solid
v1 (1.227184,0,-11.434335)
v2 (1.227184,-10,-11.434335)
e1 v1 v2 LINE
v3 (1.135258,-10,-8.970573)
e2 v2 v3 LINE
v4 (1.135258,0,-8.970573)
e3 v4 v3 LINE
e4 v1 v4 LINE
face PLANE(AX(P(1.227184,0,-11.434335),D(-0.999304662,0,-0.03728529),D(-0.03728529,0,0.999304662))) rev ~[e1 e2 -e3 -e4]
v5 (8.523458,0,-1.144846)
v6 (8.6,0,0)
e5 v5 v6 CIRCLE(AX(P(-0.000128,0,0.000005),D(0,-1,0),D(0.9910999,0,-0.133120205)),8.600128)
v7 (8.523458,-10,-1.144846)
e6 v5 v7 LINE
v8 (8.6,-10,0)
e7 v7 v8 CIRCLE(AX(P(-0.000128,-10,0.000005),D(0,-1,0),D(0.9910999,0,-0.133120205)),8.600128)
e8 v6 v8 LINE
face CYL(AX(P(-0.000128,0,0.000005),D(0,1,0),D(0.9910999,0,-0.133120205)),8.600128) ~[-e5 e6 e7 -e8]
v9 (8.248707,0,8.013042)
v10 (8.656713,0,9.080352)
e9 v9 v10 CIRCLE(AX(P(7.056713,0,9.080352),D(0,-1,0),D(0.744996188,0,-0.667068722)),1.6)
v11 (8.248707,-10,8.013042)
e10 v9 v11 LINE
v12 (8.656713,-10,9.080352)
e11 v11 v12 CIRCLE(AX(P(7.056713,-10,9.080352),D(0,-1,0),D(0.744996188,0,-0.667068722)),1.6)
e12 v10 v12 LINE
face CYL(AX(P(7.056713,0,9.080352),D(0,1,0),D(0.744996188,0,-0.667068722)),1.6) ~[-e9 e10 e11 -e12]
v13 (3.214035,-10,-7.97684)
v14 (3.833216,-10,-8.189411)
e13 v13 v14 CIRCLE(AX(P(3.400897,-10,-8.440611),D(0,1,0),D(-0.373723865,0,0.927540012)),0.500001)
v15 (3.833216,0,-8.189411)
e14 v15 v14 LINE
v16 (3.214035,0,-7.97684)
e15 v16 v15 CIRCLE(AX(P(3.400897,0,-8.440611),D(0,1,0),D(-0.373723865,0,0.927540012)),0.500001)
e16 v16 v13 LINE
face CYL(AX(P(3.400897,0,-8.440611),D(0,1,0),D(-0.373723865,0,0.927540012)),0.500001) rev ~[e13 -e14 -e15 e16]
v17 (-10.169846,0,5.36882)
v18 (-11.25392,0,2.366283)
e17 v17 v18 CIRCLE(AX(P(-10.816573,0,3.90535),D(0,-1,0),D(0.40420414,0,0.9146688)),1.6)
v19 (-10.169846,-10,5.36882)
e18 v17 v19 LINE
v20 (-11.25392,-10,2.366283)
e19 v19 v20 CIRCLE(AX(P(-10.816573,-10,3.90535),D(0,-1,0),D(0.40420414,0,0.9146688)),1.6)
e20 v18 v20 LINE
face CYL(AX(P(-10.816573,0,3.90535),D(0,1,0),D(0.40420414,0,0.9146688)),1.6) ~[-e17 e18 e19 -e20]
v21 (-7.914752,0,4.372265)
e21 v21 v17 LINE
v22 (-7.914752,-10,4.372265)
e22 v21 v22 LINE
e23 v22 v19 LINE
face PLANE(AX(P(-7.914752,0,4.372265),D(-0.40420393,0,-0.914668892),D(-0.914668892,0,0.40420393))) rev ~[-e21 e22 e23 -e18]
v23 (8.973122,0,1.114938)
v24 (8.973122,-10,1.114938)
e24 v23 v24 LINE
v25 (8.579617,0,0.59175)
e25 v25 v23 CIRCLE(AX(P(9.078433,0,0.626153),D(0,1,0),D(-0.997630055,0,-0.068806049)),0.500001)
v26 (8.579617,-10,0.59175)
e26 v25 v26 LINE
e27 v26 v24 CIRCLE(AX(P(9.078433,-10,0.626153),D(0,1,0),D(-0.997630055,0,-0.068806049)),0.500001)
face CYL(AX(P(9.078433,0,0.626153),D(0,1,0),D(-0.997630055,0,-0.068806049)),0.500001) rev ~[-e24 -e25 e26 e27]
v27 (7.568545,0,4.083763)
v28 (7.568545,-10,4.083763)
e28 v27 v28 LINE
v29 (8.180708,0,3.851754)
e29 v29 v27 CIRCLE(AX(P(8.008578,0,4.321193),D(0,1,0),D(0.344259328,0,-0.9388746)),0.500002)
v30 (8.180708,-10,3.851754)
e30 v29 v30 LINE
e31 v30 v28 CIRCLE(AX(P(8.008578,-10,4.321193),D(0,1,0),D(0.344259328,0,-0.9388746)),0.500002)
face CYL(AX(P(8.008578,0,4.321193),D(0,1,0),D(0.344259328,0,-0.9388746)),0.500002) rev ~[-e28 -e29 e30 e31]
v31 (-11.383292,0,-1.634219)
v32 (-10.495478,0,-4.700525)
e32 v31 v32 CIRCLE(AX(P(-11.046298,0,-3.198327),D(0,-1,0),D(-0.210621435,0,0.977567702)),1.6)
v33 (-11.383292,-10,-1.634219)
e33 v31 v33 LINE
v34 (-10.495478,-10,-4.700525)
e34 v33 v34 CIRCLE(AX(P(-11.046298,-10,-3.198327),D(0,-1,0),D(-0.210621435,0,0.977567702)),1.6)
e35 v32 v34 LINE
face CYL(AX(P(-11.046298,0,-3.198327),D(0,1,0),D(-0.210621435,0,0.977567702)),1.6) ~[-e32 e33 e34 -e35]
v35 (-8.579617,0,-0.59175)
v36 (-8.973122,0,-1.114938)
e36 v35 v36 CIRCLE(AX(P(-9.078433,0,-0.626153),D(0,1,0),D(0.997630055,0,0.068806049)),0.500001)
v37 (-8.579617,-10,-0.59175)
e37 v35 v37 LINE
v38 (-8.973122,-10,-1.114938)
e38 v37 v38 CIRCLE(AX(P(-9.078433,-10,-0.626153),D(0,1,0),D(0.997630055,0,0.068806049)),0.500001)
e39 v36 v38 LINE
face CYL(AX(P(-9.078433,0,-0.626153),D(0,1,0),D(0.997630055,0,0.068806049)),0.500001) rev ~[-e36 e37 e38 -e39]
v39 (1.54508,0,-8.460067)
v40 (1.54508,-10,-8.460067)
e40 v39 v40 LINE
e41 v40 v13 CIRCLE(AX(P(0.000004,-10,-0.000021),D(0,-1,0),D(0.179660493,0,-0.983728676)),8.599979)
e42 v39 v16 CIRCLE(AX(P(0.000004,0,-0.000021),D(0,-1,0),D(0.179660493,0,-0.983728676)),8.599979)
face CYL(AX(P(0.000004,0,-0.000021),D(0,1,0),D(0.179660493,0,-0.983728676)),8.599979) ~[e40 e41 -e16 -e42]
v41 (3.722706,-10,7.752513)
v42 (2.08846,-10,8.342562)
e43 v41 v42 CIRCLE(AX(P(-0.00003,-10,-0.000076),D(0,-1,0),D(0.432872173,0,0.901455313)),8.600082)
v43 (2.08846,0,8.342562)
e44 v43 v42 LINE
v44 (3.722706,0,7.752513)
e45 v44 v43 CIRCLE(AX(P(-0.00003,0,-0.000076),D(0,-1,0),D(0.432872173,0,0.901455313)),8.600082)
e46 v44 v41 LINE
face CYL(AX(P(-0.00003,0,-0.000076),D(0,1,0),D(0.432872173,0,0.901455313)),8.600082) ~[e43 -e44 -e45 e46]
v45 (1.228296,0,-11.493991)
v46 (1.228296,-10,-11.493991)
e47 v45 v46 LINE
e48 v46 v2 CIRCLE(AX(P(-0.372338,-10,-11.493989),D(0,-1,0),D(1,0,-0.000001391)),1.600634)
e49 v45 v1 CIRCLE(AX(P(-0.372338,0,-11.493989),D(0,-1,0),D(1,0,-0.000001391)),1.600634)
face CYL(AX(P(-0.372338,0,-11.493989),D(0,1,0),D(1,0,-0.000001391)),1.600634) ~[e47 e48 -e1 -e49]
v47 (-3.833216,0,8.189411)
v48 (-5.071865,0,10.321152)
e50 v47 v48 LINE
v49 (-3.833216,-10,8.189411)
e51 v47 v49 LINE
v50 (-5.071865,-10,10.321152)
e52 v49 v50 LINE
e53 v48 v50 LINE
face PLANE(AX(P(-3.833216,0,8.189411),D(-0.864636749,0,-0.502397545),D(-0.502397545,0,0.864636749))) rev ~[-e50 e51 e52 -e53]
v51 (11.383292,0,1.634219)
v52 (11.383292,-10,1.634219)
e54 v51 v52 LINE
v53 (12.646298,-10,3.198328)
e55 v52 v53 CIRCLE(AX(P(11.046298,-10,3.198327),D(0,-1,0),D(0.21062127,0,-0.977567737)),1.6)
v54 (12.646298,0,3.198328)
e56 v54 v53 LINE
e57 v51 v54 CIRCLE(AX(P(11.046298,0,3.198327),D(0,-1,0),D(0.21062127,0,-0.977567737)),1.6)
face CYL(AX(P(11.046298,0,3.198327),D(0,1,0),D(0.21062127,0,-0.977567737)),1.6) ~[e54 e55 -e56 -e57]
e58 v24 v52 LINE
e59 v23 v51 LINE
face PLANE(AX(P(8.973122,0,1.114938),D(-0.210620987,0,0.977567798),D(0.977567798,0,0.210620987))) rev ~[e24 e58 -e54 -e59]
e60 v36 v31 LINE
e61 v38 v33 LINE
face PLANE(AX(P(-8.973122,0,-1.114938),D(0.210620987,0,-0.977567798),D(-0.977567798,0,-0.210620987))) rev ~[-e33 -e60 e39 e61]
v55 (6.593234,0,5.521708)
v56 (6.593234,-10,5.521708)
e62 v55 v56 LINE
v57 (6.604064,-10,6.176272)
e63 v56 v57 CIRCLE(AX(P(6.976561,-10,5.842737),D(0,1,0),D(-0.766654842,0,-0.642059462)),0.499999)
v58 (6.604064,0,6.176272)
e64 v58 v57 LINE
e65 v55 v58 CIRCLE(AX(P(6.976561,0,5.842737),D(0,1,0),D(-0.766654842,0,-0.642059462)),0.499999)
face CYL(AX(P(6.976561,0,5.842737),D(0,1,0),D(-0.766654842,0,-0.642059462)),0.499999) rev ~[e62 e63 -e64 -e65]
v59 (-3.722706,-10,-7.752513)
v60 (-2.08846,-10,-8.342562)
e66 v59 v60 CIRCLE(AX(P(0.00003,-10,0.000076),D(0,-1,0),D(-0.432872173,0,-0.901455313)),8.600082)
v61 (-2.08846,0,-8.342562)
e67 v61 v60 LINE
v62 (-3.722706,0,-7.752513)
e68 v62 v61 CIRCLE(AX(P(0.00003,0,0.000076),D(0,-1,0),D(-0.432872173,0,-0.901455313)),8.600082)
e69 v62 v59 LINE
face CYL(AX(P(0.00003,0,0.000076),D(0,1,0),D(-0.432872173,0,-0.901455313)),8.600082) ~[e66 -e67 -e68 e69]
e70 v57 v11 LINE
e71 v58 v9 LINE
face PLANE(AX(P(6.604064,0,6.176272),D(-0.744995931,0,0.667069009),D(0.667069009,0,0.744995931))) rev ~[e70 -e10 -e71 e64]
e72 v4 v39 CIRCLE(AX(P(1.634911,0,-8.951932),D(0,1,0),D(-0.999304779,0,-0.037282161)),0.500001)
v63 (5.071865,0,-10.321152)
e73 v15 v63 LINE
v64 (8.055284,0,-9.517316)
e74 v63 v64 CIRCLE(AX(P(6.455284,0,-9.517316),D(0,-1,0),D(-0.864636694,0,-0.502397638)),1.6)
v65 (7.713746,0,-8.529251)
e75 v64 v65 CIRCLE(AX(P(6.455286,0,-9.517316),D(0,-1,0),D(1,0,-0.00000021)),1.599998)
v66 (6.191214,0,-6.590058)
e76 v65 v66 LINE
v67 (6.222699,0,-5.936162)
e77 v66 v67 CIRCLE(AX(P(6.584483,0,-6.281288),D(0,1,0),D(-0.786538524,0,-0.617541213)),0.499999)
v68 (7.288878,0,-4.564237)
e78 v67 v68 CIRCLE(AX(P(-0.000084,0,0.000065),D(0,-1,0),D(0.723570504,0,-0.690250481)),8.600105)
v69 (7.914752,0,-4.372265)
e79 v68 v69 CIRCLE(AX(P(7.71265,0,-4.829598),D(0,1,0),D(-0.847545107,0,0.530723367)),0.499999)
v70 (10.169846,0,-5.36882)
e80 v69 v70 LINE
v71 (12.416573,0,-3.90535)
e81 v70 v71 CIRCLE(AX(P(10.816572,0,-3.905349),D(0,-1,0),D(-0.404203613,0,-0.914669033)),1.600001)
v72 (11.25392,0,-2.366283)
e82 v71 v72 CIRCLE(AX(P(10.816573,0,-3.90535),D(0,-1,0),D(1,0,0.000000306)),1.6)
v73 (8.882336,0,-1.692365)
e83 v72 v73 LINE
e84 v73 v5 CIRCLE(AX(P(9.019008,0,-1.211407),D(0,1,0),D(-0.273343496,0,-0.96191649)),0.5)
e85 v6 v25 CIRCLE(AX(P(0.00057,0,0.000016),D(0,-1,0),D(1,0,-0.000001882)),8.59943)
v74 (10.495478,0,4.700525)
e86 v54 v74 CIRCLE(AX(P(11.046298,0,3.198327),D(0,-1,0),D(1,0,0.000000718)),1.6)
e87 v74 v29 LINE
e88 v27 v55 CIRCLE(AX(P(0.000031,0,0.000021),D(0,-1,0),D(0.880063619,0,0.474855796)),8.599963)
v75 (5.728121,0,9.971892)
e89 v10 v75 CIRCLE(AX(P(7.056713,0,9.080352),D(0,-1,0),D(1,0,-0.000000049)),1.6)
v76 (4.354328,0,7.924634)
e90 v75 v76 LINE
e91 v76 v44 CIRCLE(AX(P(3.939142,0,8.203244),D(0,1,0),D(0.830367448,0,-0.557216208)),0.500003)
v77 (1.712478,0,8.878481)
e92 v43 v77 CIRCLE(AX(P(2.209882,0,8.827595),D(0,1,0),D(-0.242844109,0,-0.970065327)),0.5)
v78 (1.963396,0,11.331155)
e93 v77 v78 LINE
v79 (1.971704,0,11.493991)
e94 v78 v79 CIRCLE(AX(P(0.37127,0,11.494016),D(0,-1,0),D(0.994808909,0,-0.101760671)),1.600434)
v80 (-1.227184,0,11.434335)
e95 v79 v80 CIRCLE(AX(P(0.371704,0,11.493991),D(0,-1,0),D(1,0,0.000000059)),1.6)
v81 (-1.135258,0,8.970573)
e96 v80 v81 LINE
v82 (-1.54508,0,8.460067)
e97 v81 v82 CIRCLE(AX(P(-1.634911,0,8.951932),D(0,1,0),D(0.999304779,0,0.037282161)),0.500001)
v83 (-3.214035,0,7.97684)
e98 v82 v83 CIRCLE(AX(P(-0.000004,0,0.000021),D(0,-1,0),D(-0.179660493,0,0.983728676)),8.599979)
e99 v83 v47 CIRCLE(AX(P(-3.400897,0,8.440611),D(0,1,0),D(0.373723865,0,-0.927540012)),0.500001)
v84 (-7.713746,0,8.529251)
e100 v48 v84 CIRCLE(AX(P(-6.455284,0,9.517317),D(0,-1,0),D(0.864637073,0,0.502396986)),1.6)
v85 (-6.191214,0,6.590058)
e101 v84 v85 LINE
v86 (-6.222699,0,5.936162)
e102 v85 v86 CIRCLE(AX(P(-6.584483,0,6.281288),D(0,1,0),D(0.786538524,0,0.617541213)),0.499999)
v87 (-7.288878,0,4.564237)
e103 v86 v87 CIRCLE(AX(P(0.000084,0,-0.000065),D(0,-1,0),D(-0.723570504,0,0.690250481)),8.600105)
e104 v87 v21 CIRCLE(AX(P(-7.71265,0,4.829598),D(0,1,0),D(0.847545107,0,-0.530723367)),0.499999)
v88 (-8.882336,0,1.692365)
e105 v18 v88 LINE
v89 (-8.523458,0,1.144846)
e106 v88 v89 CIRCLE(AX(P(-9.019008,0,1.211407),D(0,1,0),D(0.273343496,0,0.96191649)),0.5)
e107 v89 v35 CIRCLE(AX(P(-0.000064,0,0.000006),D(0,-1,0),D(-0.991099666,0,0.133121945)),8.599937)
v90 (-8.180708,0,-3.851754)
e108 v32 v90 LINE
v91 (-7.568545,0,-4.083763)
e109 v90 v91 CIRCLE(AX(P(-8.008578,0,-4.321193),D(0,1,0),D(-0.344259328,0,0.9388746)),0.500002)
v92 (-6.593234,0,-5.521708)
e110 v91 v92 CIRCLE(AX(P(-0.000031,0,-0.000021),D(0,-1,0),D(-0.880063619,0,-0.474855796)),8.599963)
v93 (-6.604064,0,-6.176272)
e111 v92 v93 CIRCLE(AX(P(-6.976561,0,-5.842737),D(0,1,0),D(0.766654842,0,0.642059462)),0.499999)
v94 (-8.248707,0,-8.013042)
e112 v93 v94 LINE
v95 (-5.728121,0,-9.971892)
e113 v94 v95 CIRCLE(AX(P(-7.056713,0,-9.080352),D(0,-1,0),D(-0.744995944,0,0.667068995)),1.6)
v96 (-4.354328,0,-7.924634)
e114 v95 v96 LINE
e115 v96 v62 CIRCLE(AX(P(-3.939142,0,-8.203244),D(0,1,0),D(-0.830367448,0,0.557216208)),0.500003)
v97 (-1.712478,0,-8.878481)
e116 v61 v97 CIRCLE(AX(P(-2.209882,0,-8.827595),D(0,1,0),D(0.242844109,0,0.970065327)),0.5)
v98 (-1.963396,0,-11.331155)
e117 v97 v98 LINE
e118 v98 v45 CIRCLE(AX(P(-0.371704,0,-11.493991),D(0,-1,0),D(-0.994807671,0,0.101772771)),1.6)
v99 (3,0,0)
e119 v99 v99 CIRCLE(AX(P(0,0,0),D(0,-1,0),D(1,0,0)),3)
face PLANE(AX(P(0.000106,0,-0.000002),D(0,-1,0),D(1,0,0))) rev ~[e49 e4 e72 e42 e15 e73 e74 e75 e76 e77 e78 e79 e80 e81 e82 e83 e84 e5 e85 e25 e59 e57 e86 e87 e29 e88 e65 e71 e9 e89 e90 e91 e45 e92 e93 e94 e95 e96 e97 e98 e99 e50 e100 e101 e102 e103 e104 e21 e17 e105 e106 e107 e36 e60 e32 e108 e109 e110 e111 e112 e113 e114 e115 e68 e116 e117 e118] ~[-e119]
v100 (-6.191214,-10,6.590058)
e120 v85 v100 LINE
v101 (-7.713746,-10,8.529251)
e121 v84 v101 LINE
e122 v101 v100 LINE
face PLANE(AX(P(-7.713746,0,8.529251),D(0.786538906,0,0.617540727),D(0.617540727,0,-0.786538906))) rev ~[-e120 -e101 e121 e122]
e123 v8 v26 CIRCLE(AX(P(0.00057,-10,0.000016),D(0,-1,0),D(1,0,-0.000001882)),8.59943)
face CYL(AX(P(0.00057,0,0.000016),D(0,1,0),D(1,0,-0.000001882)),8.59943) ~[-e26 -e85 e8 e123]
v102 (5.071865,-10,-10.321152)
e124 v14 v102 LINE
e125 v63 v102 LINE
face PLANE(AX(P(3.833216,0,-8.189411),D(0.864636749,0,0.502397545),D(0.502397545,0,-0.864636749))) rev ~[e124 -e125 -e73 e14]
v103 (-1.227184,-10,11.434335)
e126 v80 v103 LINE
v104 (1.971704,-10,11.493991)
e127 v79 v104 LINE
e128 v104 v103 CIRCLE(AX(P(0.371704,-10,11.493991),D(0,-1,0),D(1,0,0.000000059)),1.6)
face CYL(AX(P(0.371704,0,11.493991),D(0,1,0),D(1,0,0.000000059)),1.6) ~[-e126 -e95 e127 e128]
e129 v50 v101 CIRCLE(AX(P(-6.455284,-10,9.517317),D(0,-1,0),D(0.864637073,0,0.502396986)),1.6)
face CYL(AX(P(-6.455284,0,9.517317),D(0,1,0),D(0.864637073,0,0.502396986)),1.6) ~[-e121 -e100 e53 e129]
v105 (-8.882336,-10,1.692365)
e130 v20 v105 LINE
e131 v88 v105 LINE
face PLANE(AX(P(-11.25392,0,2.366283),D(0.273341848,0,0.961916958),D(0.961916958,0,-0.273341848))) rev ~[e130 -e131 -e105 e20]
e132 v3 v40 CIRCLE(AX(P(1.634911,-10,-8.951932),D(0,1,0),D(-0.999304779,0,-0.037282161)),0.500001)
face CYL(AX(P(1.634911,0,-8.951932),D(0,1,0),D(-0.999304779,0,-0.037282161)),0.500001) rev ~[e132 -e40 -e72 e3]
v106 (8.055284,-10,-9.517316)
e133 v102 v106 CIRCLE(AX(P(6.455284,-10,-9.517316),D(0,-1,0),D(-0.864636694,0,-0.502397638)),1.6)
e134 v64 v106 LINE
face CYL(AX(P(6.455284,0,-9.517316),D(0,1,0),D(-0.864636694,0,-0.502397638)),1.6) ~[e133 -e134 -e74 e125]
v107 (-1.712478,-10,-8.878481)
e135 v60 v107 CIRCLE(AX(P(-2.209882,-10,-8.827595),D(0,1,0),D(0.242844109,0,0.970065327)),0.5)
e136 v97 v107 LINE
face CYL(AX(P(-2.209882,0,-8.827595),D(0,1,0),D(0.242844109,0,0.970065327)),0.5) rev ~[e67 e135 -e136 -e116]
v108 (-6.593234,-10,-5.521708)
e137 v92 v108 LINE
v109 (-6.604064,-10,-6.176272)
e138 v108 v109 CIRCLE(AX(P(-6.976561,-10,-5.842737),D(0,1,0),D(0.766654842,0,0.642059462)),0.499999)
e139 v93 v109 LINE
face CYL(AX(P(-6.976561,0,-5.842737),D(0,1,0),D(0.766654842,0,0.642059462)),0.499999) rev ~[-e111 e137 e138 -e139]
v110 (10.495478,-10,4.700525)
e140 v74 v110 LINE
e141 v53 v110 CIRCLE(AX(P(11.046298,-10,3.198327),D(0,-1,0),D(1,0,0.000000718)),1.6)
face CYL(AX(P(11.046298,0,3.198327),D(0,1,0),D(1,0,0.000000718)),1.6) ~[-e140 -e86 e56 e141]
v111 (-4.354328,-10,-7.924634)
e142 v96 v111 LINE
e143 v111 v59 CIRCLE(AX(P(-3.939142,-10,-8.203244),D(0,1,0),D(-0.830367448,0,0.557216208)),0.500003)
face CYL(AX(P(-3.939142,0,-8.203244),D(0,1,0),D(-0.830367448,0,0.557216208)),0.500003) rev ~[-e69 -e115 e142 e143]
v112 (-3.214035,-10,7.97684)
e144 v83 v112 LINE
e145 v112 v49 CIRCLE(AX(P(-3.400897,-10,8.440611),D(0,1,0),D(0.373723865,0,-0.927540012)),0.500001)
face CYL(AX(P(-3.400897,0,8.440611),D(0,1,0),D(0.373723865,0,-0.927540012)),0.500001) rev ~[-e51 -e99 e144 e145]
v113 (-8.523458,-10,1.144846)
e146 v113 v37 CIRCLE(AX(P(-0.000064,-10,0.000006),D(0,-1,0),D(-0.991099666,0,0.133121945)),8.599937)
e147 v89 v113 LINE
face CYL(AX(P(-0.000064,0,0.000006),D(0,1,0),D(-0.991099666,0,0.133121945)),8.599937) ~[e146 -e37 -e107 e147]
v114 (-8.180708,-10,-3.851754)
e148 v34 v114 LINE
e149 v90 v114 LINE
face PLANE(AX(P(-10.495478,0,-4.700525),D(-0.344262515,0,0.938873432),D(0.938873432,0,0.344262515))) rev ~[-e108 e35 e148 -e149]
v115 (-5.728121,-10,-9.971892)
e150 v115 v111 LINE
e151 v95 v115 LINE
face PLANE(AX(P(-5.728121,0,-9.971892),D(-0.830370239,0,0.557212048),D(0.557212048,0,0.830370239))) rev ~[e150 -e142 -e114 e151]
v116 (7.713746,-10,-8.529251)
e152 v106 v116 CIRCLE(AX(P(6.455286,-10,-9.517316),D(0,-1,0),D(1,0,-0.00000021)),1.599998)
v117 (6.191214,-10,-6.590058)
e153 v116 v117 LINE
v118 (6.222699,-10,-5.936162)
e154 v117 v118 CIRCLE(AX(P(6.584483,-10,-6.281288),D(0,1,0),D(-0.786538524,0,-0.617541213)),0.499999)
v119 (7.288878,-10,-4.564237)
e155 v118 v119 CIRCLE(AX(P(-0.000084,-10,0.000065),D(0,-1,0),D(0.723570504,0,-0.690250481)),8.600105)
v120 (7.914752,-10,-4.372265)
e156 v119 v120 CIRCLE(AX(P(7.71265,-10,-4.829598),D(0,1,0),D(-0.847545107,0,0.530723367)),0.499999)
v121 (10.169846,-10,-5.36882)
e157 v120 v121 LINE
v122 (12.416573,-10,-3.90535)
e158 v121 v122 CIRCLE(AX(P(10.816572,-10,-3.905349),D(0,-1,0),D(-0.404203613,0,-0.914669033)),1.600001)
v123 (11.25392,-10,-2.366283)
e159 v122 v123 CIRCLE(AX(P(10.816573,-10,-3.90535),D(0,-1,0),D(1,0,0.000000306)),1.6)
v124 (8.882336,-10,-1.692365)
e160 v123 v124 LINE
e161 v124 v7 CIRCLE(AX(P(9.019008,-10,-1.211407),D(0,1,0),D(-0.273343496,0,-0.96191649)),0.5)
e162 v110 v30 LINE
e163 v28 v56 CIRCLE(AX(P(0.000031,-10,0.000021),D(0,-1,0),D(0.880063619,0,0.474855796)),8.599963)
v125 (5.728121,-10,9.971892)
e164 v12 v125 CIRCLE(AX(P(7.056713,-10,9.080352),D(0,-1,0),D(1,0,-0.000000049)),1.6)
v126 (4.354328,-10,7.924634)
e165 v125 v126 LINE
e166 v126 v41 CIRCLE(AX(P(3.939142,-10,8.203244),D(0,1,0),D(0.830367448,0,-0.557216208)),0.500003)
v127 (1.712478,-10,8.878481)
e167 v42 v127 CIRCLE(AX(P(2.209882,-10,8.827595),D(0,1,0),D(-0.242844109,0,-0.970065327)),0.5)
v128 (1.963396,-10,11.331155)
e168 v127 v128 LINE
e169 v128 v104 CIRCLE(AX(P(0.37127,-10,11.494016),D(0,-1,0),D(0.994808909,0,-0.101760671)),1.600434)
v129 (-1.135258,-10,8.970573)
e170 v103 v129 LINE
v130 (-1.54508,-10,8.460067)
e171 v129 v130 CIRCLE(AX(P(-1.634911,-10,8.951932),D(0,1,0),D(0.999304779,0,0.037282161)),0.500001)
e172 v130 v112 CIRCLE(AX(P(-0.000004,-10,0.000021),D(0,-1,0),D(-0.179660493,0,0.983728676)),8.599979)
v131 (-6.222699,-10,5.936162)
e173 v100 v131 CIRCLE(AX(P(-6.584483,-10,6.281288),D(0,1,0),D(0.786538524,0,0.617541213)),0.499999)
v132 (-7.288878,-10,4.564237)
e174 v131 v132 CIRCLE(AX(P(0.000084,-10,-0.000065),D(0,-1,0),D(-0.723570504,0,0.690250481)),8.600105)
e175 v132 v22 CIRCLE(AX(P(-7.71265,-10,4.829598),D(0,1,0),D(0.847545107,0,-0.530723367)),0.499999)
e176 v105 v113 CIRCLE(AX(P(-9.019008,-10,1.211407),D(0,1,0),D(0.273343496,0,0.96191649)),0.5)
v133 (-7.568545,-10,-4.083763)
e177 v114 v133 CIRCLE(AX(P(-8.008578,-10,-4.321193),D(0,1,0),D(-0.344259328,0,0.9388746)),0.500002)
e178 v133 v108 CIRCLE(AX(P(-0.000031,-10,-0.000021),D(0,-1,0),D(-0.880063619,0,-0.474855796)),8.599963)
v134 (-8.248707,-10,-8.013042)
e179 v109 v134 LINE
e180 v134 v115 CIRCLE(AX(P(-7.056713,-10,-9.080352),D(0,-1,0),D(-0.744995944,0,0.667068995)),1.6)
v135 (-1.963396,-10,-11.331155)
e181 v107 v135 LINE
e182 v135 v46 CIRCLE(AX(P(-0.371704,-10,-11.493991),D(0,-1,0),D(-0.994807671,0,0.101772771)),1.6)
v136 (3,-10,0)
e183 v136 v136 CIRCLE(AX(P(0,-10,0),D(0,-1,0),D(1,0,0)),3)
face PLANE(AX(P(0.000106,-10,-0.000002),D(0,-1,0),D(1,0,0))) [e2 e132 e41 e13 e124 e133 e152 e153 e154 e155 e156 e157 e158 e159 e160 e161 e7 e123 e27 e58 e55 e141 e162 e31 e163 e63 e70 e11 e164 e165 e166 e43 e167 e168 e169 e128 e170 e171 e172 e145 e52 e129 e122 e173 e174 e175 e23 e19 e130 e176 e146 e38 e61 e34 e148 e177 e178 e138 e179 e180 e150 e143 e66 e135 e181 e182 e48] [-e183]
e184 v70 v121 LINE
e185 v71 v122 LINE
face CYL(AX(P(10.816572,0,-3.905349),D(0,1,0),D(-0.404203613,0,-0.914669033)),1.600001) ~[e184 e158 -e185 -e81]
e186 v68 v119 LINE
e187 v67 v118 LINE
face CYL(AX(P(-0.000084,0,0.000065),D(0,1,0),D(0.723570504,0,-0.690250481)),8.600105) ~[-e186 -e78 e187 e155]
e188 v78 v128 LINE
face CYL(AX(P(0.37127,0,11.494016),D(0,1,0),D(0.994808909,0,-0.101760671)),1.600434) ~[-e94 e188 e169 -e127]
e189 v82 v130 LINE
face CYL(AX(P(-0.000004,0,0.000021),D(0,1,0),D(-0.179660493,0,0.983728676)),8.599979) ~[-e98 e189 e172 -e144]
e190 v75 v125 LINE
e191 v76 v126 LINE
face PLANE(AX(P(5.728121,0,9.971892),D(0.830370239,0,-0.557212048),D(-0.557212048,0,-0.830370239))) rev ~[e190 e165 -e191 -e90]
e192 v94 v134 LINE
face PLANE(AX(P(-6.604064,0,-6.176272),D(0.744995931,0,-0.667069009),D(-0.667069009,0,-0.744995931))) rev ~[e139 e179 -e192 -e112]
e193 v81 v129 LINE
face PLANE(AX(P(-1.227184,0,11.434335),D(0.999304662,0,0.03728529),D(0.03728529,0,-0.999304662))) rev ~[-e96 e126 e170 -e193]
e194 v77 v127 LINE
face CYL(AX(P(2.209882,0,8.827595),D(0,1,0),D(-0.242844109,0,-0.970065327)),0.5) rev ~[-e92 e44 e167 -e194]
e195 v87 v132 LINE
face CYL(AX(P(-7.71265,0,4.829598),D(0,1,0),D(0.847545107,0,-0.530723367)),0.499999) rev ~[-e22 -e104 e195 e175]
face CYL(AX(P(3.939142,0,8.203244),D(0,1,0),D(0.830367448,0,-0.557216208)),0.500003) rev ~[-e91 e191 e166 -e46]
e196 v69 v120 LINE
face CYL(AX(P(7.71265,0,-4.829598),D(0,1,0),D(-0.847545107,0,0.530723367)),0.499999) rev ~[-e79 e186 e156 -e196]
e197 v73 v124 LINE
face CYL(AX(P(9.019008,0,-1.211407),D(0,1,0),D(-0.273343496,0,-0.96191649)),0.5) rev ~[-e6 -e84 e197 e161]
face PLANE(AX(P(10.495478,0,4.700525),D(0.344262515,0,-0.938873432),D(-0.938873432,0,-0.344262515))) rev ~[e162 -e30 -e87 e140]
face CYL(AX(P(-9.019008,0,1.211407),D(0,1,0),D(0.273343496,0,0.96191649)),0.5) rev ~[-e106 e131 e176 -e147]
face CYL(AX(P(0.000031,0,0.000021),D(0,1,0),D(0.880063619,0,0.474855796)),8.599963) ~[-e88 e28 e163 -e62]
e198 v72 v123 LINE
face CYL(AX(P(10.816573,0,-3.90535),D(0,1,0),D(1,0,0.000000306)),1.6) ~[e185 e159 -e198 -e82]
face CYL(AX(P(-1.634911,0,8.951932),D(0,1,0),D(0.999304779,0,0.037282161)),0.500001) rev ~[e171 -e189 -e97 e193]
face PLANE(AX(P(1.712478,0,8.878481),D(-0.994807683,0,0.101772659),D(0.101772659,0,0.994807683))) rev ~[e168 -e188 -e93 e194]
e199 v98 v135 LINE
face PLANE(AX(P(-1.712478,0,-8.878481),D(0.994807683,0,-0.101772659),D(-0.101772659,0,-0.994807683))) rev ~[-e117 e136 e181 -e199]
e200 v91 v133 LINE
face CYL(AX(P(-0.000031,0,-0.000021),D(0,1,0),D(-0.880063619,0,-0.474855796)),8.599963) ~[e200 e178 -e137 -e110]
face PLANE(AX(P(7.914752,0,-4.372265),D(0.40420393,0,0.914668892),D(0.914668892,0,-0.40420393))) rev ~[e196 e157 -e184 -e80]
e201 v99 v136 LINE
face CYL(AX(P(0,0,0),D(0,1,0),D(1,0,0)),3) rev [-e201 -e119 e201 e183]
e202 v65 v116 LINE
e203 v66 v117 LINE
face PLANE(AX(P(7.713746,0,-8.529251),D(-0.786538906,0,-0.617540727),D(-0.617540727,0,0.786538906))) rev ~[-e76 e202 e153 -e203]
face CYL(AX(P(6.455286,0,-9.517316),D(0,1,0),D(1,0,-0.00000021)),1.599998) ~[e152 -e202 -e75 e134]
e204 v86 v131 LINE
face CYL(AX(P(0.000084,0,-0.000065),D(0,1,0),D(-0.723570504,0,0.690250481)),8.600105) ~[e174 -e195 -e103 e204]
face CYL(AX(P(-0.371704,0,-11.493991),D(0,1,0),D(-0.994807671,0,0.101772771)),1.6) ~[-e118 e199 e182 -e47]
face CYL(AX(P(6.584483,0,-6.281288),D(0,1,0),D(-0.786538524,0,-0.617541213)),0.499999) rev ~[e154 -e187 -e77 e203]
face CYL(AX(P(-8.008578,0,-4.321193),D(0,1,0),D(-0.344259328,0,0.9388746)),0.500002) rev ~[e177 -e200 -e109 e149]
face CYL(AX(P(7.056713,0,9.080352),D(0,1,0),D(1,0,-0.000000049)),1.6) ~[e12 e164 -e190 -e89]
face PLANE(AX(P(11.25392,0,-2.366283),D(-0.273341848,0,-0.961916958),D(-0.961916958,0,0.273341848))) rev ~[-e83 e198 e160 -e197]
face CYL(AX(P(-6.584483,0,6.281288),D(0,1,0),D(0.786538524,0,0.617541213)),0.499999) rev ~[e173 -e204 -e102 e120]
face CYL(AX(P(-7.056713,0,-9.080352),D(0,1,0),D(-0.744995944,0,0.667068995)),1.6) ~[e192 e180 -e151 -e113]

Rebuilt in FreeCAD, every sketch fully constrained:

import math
import FreeCAD as App
import Part
import Sketcher

V = App.Vector

doc = App.newDocument("Part")
body = doc.addObject("PartDesign::Body", "Body")

# Sketch on XZ plane
sketch1 = body.newObject("Sketcher::SketchObject", "Sketch")
sketch1.AttachmentSupport = (doc.getObject("XZ_Plane"), [""])
sketch1.MapMode = "FlatFace"
sketch1.addGeometry([
    Part.ArcOfCircle(Part.Circle(V(-0.000128, 0.000005, 0), V(0, 0, 1), 8.600128), math.radians(-7.649934), math.radians(-0.000032)),  # 0
    Part.ArcOfCircle(Part.Circle(V(0.00057, 0.000016, 0), V(0, 0, 1), 8.59943), math.radians(-0.000108), math.radians(3.945687)),  # 1
    Part.ArcOfCircle(Part.Circle(V(9.078433, 0.626153, 0), V(0, 0, 1), 0.500001), math.radians(102.158794), math.radians(183.945414)),  # 2
    Part.LineSegment(V(8.973122, 1.114938, 0), V(11.383292, 1.634219, 0)),  # 3
    Part.ArcOfCircle(Part.Circle(V(11.046298, 3.198327, 0), V(0, 0, 1), 1.6), math.radians(-77.841237), math.radians(0.000021)),  # 4
    Part.ArcOfCircle(Part.Circle(V(11.046298, 3.198327, 0), V(0, 0, 1), 1.6), math.radians(0.000041), math.radians(110.136759)),  # 5
    Part.LineSegment(V(10.495478, 4.700525, 0), V(8.180708, 3.851754, 0)),  # 6
    Part.ArcOfCircle(Part.Circle(V(8.008578, 4.321193, 0), V(0, 0, 1), 0.500002), math.radians(-151.649878), math.radians(-69.863411)),  # 7
    Part.ArcOfCircle(Part.Circle(V(0.000031, 0.000021, 0), V(0, 0, 1), 8.599963), math.radians(28.349961), math.radians(39.945558)),  # 8
    Part.ArcOfCircle(Part.Circle(V(6.976561, 5.842737, 0), V(0, 0, 1), 0.499999), math.radians(138.158654), math.radians(219.94556)),  # 9
    Part.LineSegment(V(6.604064, 6.176272, 0), V(8.248707, 8.013042, 0)),  # 10
    Part.ArcOfCircle(Part.Circle(V(7.056713, 9.080352, 0), V(0, 0, 1), 1.6), math.radians(-41.841229), math.radians(0.000011)),  # 11
    Part.ArcOfCircle(Part.Circle(V(7.056713, 9.080352, 0), V(0, 0, 1), 1.6), math.radians(-0.000003), math.radians(146.136762)),  # 12
    Part.LineSegment(V(5.728121, 9.971892, 0), V(4.354328, 7.924634, 0)),  # 13
    Part.ArcOfCircle(Part.Circle(V(3.939142, 8.203244, 0), V(0, 0, 1), 0.500003), math.radians(-115.64983), math.radians(-33.863498)),  # 14
    Part.ArcOfCircle(Part.Circle(V(-0.00003, -0.000076, 0), V(0, 0, 1), 8.600082), math.radians(64.350026), math.radians(75.945462)),  # 15
    Part.ArcOfCircle(Part.Circle(V(2.209882, 8.827595, 0), V(0, 0, 1), 0.5), math.radians(174.158773), math.radians(255.945537)),  # 16
    Part.LineSegment(V(1.712478, 8.878481, 0), V(1.963396, 11.331155, 0)),  # 17
    Part.ArcOfCircle(Part.Circle(V(0.37127, 11.494016, 0), V(0, 0, 1), 1.600434), math.radians(-5.840567), math.radians(-0.000905)),  # 18
    Part.ArcOfCircle(Part.Circle(V(0.371704, 11.493991, 0), V(0, 0, 1), 1.6), math.radians(0.000003), math.radians(182.136765)),  # 19
    Part.LineSegment(V(-1.227184, 11.434335, 0), V(-1.135258, 8.970573, 0)),  # 20
    Part.ArcOfCircle(Part.Circle(V(-1.634911, 8.951932, 0), V(0, 0, 1), 0.500001), math.radians(-79.649932), math.radians(2.136606)),  # 21
    Part.ArcOfCircle(Part.Circle(V(-0.000004, 0.000021, 0), V(0, 0, 1), 8.599979), math.radians(100.349985), math.radians(111.945563)),  # 22
    Part.ArcOfCircle(Part.Circle(V(-3.400897, 8.440611, 0), V(0, 0, 1), 0.500001), math.radians(-149.841175), math.radians(-68.054538)),  # 23
    Part.LineSegment(V(-3.833216, 8.189411, 0), V(-5.071865, 10.321152, 0)),  # 24
    Part.ArcOfCircle(Part.Circle(V(-6.455284, 9.517317, 0), V(0, 0, 1), 1.6), math.radians(30.15871), math.radians(218.136798)),  # 25
    Part.LineSegment(V(-7.713746, 8.529251, 0), V(-6.191214, 6.590058, 0)),  # 26
    Part.ArcOfCircle(Part.Circle(V(-6.584483, 6.281288, 0), V(0, 0, 1), 0.499999), math.radians(-43.650112), math.radians(38.136802)),  # 27
    Part.ArcOfCircle(Part.Circle(V(0.000084, -0.000065, 0), V(0, 0, 1), 8.600105), math.radians(136.35006), math.radians(147.945461)),  # 28
    Part.ArcOfCircle(Part.Circle(V(-7.71265, 4.829598, 0), V(0, 0, 1), 0.499999), math.radians(-113.841352), math.radians(-32.054343)),  # 29
    Part.LineSegment(V(-7.914752, 4.372265, 0), V(-10.169846, 5.36882, 0)),  # 30
    Part.ArcOfCircle(Part.Circle(V(-10.816573, 3.90535, 0), V(0, 0, 1), 1.6), math.radians(66.158736), math.radians(254.13676)),  # 31
    Part.LineSegment(V(-11.25392, 2.366283, 0), V(-8.882336, 1.692365, 0)),  # 32
    Part.ArcOfCircle(Part.Circle(V(-9.019008, 1.211407, 0), V(0, 0, 1), 0.5), math.radians(-7.650027), math.radians(74.136678)),  # 33
    Part.ArcOfCircle(Part.Circle(V(-0.000064, 0.000006, 0), V(0, 0, 1), 8.599937), math.radians(172.349965), math.radians(183.945601)),  # 34
    Part.ArcOfCircle(Part.Circle(V(-9.078433, -0.626153, 0), V(0, 0, 1), 0.500001), math.radians(-77.841206), math.radians(3.945414)),  # 35
    Part.LineSegment(V(-8.973122, -1.114938, 0), V(-11.383292, -1.634219, 0)),  # 36
    Part.ArcOfCircle(Part.Circle(V(-11.046298, -3.198327, 0), V(0, 0, 1), 1.6), math.radians(102.158772), math.radians(290.136771)),  # 37
    Part.LineSegment(V(-10.495478, -4.700525, 0), V(-8.180708, -3.851754, 0)),  # 38
    Part.ArcOfCircle(Part.Circle(V(-8.008578, -4.321193, 0), V(0, 0, 1), 0.500002), math.radians(28.350122), math.radians(110.136589)),  # 39
    Part.ArcOfCircle(Part.Circle(V(-0.000031, -0.000021, 0), V(0, 0, 1), 8.599963), math.radians(-151.650039), math.radians(-140.054442)),  # 40
    Part.ArcOfCircle(Part.Circle(V(-6.976561, -5.842737, 0), V(0, 0, 1), 0.499999), math.radians(-41.841346), math.radians(39.94556)),  # 41
    Part.LineSegment(V(-6.604064, -6.176272, 0), V(-8.248707, -8.013042, 0)),  # 42
    Part.ArcOfCircle(Part.Circle(V(-7.056713, -9.080352, 0), V(0, 0, 1), 1.6), math.radians(138.158751), math.radians(326.136782)),  # 43
    Part.LineSegment(V(-5.728121, -9.971892, 0), V(-4.354328, -7.924634, 0)),  # 44
    Part.ArcOfCircle(Part.Circle(V(-3.939142, -8.203244, 0), V(0, 0, 1), 0.500003), math.radians(64.35017), math.radians(146.136502)),  # 45
    Part.ArcOfCircle(Part.Circle(V(0.00003, 0.000076, 0), V(0, 0, 1), 8.600082), math.radians(-115.649974), math.radians(-104.054538)),  # 46
    Part.ArcOfCircle(Part.Circle(V(-2.209882, -8.827595, 0), V(0, 0, 1), 0.5), math.radians(-5.841227), math.radians(75.945537)),  # 47
    Part.LineSegment(V(-1.712478, -8.878481, 0), V(-1.963396, -11.331155, 0)),  # 48
    Part.ArcOfCircle(Part.Circle(V(-0.371704, -11.493991, 0), V(0, 0, 1), 1.6), math.radians(174.158736), math.radians(360.000015)),  # 49
    Part.ArcOfCircle(Part.Circle(V(-0.372338, -11.493989, 0), V(0, 0, 1), 1.600634), math.radians(-0.00008), math.radians(2.135842)),  # 50
    Part.LineSegment(V(1.227184, -11.434335, 0), V(1.135258, -8.970573, 0)),  # 51
    Part.ArcOfCircle(Part.Circle(V(1.634911, -8.951932, 0), V(0, 0, 1), 0.500001), math.radians(100.350068), math.radians(182.136606)),  # 52
    Part.ArcOfCircle(Part.Circle(V(0.000004, -0.000021, 0), V(0, 0, 1), 8.599979), math.radians(-79.650015), math.radians(-68.054437)),  # 53
    Part.ArcOfCircle(Part.Circle(V(3.400897, -8.440611, 0), V(0, 0, 1), 0.500001), math.radians(30.158825), math.radians(111.945462)),  # 54
    Part.LineSegment(V(3.833216, -8.189411, 0), V(5.071865, -10.321152, 0)),  # 55
    Part.ArcOfCircle(Part.Circle(V(6.455284, -9.517316, 0), V(0, 0, 1), 1.6), math.radians(-149.841246), math.radians(-0.000011)),  # 56
    Part.ArcOfCircle(Part.Circle(V(6.455286, -9.517316, 0), V(0, 0, 1), 1.599998), math.radians(-0.000012), math.radians(38.136811)),  # 57
    Part.LineSegment(V(7.713746, -8.529251, 0), V(6.191214, -6.590058, 0)),  # 58
    Part.ArcOfCircle(Part.Circle(V(6.584483, -6.281288, 0), V(0, 0, 1), 0.499999), math.radians(136.349888), math.radians(218.136802)),  # 59
    Part.ArcOfCircle(Part.Circle(V(-0.000084, 0.000065, 0), V(0, 0, 1), 8.600105), math.radians(-43.64994), math.radians(-32.054539)),  # 60
    Part.ArcOfCircle(Part.Circle(V(7.71265, -4.829598, 0), V(0, 0, 1), 0.499999), math.radians(66.158648), math.radians(147.945657)),  # 61
    Part.LineSegment(V(7.914752, -4.372265, 0), V(10.169846, -5.36882, 0)),  # 62
    Part.ArcOfCircle(Part.Circle(V(10.816572, -3.905349, 0), V(0, 0, 1), 1.600001), math.radians(-113.841231), math.radians(-0.000045)),  # 63
    Part.ArcOfCircle(Part.Circle(V(10.816573, -3.90535, 0), V(0, 0, 1), 1.6), math.radians(0.000018), math.radians(74.136762)),  # 64
    Part.LineSegment(V(11.25392, -2.366283, 0), V(8.882336, -1.692365, 0)),  # 65
    Part.ArcOfCircle(Part.Circle(V(9.019008, -1.211407, 0), V(0, 0, 1), 0.5), math.radians(172.349973), math.radians(254.136678)),  # 66
    Part.Circle(V(0, 0, 0), V(0, 0, 1), 3),  # 67
], False)
sketch1.addConstraint([
    Sketcher.Constraint("Coincident", 0, 2, 1, 1),
    Sketcher.Constraint("Coincident", 1, 2, 2, 2),
    Sketcher.Constraint("Coincident", 2, 1, 3, 1),
    Sketcher.Constraint("Coincident", 3, 2, 4, 1),
    Sketcher.Constraint("Coincident", 4, 2, 5, 1),
    Sketcher.Constraint("Coincident", 5, 2, 6, 1),
    Sketcher.Constraint("Coincident", 6, 2, 7, 2),
    Sketcher.Constraint("Coincident", 7, 1, 8, 1),
    Sketcher.Constraint("Coincident", 8, 2, 9, 2),
    Sketcher.Constraint("Coincident", 9, 1, 10, 1),
    Sketcher.Constraint("Coincident", 10, 2, 11, 1),
    Sketcher.Constraint("Coincident", 11, 2, 12, 1),
    Sketcher.Constraint("Coincident", 12, 2, 13, 1),
    Sketcher.Constraint("Coincident", 13, 2, 14, 2),
    Sketcher.Constraint("Coincident", 14, 1, 15, 1),
    Sketcher.Constraint("Coincident", 15, 2, 16, 2),
    Sketcher.Constraint("Coincident", 16, 1, 17, 1),
    Sketcher.Constraint("Coincident", 17, 2, 18, 1),
    Sketcher.Constraint("Coincident", 18, 2, 19, 1),
    Sketcher.Constraint("Coincident", 19, 2, 20, 1),
    Sketcher.Constraint("Coincident", 20, 2, 21, 2),
    Sketcher.Constraint("Coincident", 21, 1, 22, 1),
    Sketcher.Constraint("Coincident", 22, 2, 23, 2),
    Sketcher.Constraint("Coincident", 23, 1, 24, 1),
    Sketcher.Constraint("Coincident", 24, 2, 25, 1),
    Sketcher.Constraint("Coincident", 25, 2, 26, 1),
    Sketcher.Constraint("Coincident", 26, 2, 27, 2),
    Sketcher.Constraint("Coincident", 27, 1, 28, 1),
    Sketcher.Constraint("Coincident", 28, 2, 29, 2),
    Sketcher.Constraint("Coincident", 29, 1, 30, 1),
    Sketcher.Constraint("Coincident", 30, 2, 31, 1),
    Sketcher.Constraint("Coincident", 31, 2, 32, 1),
    Sketcher.Constraint("Coincident", 32, 2, 33, 2),
    Sketcher.Constraint("Coincident", 33, 1, 34, 1),
    Sketcher.Constraint("Coincident", 34, 2, 35, 2),
    Sketcher.Constraint("Coincident", 35, 1, 36, 1),
    Sketcher.Constraint("Coincident", 36, 2, 37, 1),
    Sketcher.Constraint("Coincident", 37, 2, 38, 1),
    Sketcher.Constraint("Coincident", 38, 2, 39, 2),
    Sketcher.Constraint("Coincident", 39, 1, 40, 1),
    Sketcher.Constraint("Coincident", 40, 2, 41, 2),
    Sketcher.Constraint("Coincident", 41, 1, 42, 1),
    Sketcher.Constraint("Coincident", 42, 2, 43, 1),
    Sketcher.Constraint("Coincident", 43, 2, 44, 1),
    Sketcher.Constraint("Coincident", 44, 2, 45, 2),
    Sketcher.Constraint("Coincident", 45, 1, 46, 1),
    Sketcher.Constraint("Coincident", 46, 2, 47, 2),
    Sketcher.Constraint("Coincident", 47, 1, 48, 1),
    Sketcher.Constraint("Coincident", 48, 2, 49, 1),
    Sketcher.Constraint("Coincident", 49, 2, 50, 1),
    Sketcher.Constraint("Coincident", 50, 2, 51, 1),
    Sketcher.Constraint("Coincident", 51, 2, 52, 2),
    Sketcher.Constraint("Coincident", 52, 1, 53, 1),
    Sketcher.Constraint("Coincident", 53, 2, 54, 2),
    Sketcher.Constraint("Coincident", 54, 1, 55, 1),
    Sketcher.Constraint("Coincident", 55, 2, 56, 1),
    Sketcher.Constraint("Coincident", 56, 2, 57, 1),
    Sketcher.Constraint("Coincident", 57, 2, 58, 1),
    Sketcher.Constraint("Coincident", 58, 2, 59, 2),
    Sketcher.Constraint("Coincident", 59, 1, 60, 1),
    Sketcher.Constraint("Coincident", 60, 2, 61, 2),
    Sketcher.Constraint("Coincident", 61, 1, 62, 1),
    Sketcher.Constraint("Coincident", 62, 2, 63, 1),
    Sketcher.Constraint("Coincident", 63, 2, 64, 1),
    Sketcher.Constraint("Coincident", 64, 2, 65, 1),
    Sketcher.Constraint("Coincident", 65, 2, 66, 2),
    Sketcher.Constraint("Coincident", 66, 1, 0, 1),
    Sketcher.Constraint("Coincident", 67, 3, -1, 1),
    Sketcher.Constraint("Coincident", 5, 3, 4, 3),
    Sketcher.Constraint("Coincident", 12, 3, 11, 3),
    Sketcher.Constraint("Coincident", 57, 3, 56, 3),
    Sketcher.Constraint("Coincident", 64, 3, 63, 3),
    Sketcher.Constraint("PointOnObject", 0, 2, -1),
    Sketcher.Constraint("Diameter", 67, 6.0),
    Sketcher.Constraint("Radius", 2, 0.500001),
    Sketcher.Constraint("Radius", 4, 1.6),
    Sketcher.Constraint("Radius", 7, 0.500002),
    Sketcher.Constraint("Radius", 9, 0.499999),
    Sketcher.Constraint("Radius", 11, 1.6),
    Sketcher.Constraint("Radius", 16, 0.5),
    Sketcher.Constraint("Radius", 19, 1.6),
    Sketcher.Constraint("Radius", 21, 0.500001),
    Sketcher.Constraint("Radius", 23, 0.500001),
    Sketcher.Constraint("Radius", 25, 1.6),
    Sketcher.Constraint("Radius", 27, 0.499999),
    Sketcher.Constraint("Radius", 29, 0.499999),
    Sketcher.Constraint("Radius", 31, 1.6),
    Sketcher.Constraint("Radius", 33, 0.5),
    Sketcher.Constraint("Radius", 35, 0.500001),
    Sketcher.Constraint("Radius", 37, 1.6),
    Sketcher.Constraint("Radius", 39, 0.500002),
    Sketcher.Constraint("Radius", 41, 0.499999),
    Sketcher.Constraint("Radius", 43, 1.6),
    Sketcher.Constraint("Radius", 47, 0.5),
    Sketcher.Constraint("Radius", 49, 1.6),
    Sketcher.Constraint("Radius", 52, 0.500001),
    Sketcher.Constraint("Radius", 54, 0.500001),
    Sketcher.Constraint("Radius", 56, 1.6),
    Sketcher.Constraint("Radius", 59, 0.499999),
    Sketcher.Constraint("Radius", 61, 0.499999),
    Sketcher.Constraint("Radius", 63, 1.600001),
    Sketcher.Constraint("Radius", 66, 0.5),
    Sketcher.Constraint("DistanceX", -1, 1, 0, 2, 8.6),
    Sketcher.Constraint("Radius", 1, 8.59943),
    Sketcher.Constraint("Radius", 15, 8.600082),
    Sketcher.Constraint("Radius", 22, 8.599979),
    Sketcher.Constraint("Radius", 46, 8.600082),
    Sketcher.Constraint("Radius", 53, 8.599979),
    Sketcher.Constraint("Radius", 0, 8.600128),
    Sketcher.Constraint("Radius", 8, 8.599963),
    Sketcher.Constraint("Radius", 14, 0.500003),
    Sketcher.Constraint("Radius", 18, 1.600434),
    Sketcher.Constraint("Radius", 28, 8.600105),
    Sketcher.Constraint("Radius", 34, 8.599937),
    Sketcher.Constraint("Radius", 40, 8.599963),
    Sketcher.Constraint("Radius", 45, 0.500003),
    Sketcher.Constraint("Radius", 50, 1.600634),
    Sketcher.Constraint("Radius", 60, 8.600105),
    Sketcher.Constraint("DistanceY", -1, 1, 29, 3, 4.829598),
    Sketcher.Constraint("DistanceY", 61, 3, -1, 1, 4.829598),
    Sketcher.Constraint("DistanceX", 27, 1, -1, 1, 6.222699),
    Sketcher.Constraint("DistanceX", -1, 1, 59, 1, 6.222699),
    Sketcher.Constraint("DistanceX", -1, 1, 9, 3, 6.976561),
    Sketcher.Constraint("DistanceY", -1, 1, 11, 3, 9.080352),
    Sketcher.Constraint("DistanceX", -1, 1, 18, 3, 0.37127),
    Sketcher.Constraint("DistanceY", -1, 1, 19, 3, 11.493991),
    Sketcher.Constraint("DistanceX", 21, 3, -1, 1, 1.634911),
    Sketcher.Constraint("DistanceY", -1, 1, 21, 3, 8.951932),
    Sketcher.Constraint("DistanceY", -1, 1, 23, 3, 8.440611),
    Sketcher.Constraint("DistanceX", 29, 3, -1, 1, 7.71265),
    Sketcher.Constraint("DistanceY", -1, 1, 31, 3, 3.90535),
    Sketcher.Constraint("DistanceX", 41, 3, -1, 1, 6.976561),
    Sketcher.Constraint("DistanceY", 49, 3, -1, 1, 11.493991),
    Sketcher.Constraint("DistanceY", 50, 3, -1, 1, 11.493989),
    Sketcher.Constraint("DistanceX", -1, 1, 52, 3, 1.634911),
    Sketcher.Constraint("DistanceY", 52, 3, -1, 1, 8.951932),
    Sketcher.Constraint("DistanceY", 54, 3, -1, 1, 8.440611),
    Sketcher.Constraint("DistanceX", -1, 1, 61, 3, 7.71265),
    Sketcher.Constraint("DistanceY", 63, 3, -1, 1, 3.905349),
    Sketcher.Constraint("DistanceY", -1, 1, 1, 2, 0.59175),
    Sketcher.Constraint("DistanceY", -1, 1, 3, 2, 1.634219),
    Sketcher.Constraint("DistanceY", -1, 1, 4, 2, 3.198328),
    Sketcher.Constraint("DistanceY", -1, 1, 8, 2, 5.521708),
    Sketcher.Constraint("DistanceX", -1, 1, 12, 2, 5.728121),
    Sketcher.Constraint("DistanceX", -1, 1, 15, 2, 2.08846),
    Sketcher.Constraint("DistanceX", -1, 1, 16, 1, 1.712478),
    Sketcher.Constraint("DistanceY", -1, 1, 16, 1, 8.878481),
    Sketcher.Constraint("DistanceY", -1, 1, 18, 2, 11.493991),
    Sketcher.Constraint("DistanceX", 20, 2, -1, 1, 1.135258),
    Sketcher.Constraint("DistanceX", 21, 1, -1, 1, 1.54508),
    Sketcher.Constraint("DistanceY", -1, 1, 22, 2, 7.97684),
    Sketcher.Constraint("DistanceY", -1, 1, 23, 1, 8.189411),
    Sketcher.Constraint("DistanceY", -1, 1, 25, 2, 8.529251),
    Sketcher.Constraint("DistanceY", -1, 1, 27, 1, 5.936162),
    Sketcher.Constraint("DistanceX", 28, 2, -1, 1, 7.288878),
    Sketcher.Constraint("DistanceY", -1, 1, 30, 2, 5.36882),
    Sketcher.Constraint("DistanceX", 31, 2, -1, 1, 11.25392),
    Sketcher.Constraint("DistanceX", 33, 1, -1, 1, 8.523458),
    Sketcher.Constraint("DistanceY", 34, 2, -1, 1, 0.59175),
    Sketcher.Constraint("DistanceY", 36, 2, -1, 1, 1.634219),
    Sketcher.Constraint("DistanceY", 40, 2, -1, 1, 5.521708),
    Sketcher.Constraint("DistanceX", 43, 2, -1, 1, 5.728121),
    Sketcher.Constraint("DistanceX", 46, 2, -1, 1, 2.08846),
    Sketcher.Constraint("DistanceX", 47, 1, -1, 1, 1.712478),
    Sketcher.Constraint("DistanceY", 47, 1, -1, 1, 8.878481),
    Sketcher.Constraint("DistanceY", 49, 2, -1, 1, 11.493991),
    Sketcher.Constraint("DistanceX", -1, 1, 51, 2, 1.135258),
    Sketcher.Constraint("DistanceX", -1, 1, 52, 1, 1.54508),
    Sketcher.Constraint("DistanceY", 53, 2, -1, 1, 7.97684),
    Sketcher.Constraint("DistanceY", 54, 1, -1, 1, 8.189411),
    Sketcher.Constraint("DistanceY", 57, 2, -1, 1, 8.529251),
    Sketcher.Constraint("DistanceY", 59, 1, -1, 1, 5.936162),
    Sketcher.Constraint("DistanceX", -1, 1, 60, 2, 7.288878),
    Sketcher.Constraint("DistanceY", 62, 2, -1, 1, 5.36882),
    Sketcher.Constraint("DistanceY", 63, 2, -1, 1, 3.90535),
    Sketcher.Constraint("DistanceX", -1, 1, 64, 2, 11.25392),
    Sketcher.Constraint("DistanceX", -1, 1, 66, 1, 8.523458),
    Sketcher.Constraint("Distance", 3, 2.465476),
    Sketcher.Constraint("Distance", 6, 2.465476),
    Sketcher.Constraint("Distance", 10, 2.465477),
    Sketcher.Constraint("Distance", 13, 2.465476),
    Sketcher.Constraint("Distance", 17, 2.465476),
    Sketcher.Constraint("Distance", 20, 2.465476),
    Sketcher.Constraint("Distance", 24, 2.465476),
    Sketcher.Constraint("Distance", 26, 2.465476),
    Sketcher.Constraint("Distance", 30, 2.465476),
    Sketcher.Constraint("Distance", 32, 2.465477),
    Sketcher.Constraint("Distance", 36, 2.465476),
    Sketcher.Constraint("Distance", 38, 2.465476),
    Sketcher.Constraint("Distance", 42, 2.465477),
    Sketcher.Constraint("Distance", 44, 2.465476),
    Sketcher.Constraint("Distance", 48, 2.465476),
    Sketcher.Constraint("Distance", 51, 2.465476),
    Sketcher.Constraint("Distance", 55, 2.465476),
    Sketcher.Constraint("Distance", 58, 2.465476),
    Sketcher.Constraint("Distance", 62, 2.465476),
    Sketcher.Constraint("Distance", 65, 2.465477),
    Sketcher.Constraint("DistanceX", -1, 1, 2, 3, 9.078433),
    Sketcher.Constraint("DistanceY", -1, 1, 2, 3, 0.626153),
    Sketcher.Constraint("DistanceX", -1, 1, 4, 3, 11.046298),
    Sketcher.Constraint("DistanceY", -1, 1, 4, 3, 3.198327),
    Sketcher.Constraint("DistanceX", -1, 1, 7, 3, 8.008578),
    Sketcher.Constraint("DistanceY", -1, 1, 7, 3, 4.321193),
    Sketcher.Constraint("DistanceY", -1, 1, 9, 3, 5.842737),
    Sketcher.Constraint("DistanceX", -1, 1, 11, 3, 7.056713),
    Sketcher.Constraint("DistanceX", -1, 1, 14, 3, 3.939142),
    Sketcher.Constraint("DistanceY", -1, 1, 14, 3, 8.203244),
    Sketcher.Constraint("DistanceX", -1, 1, 16, 3, 2.209882),
    Sketcher.Constraint("DistanceY", -1, 1, 18, 3, 11.494016),
    Sketcher.Constraint("DistanceX", 23, 3, -1, 1, 3.400897),
    Sketcher.Constraint("DistanceX", 25, 3, -1, 1, 6.455284),
    Sketcher.Constraint("DistanceY", -1, 1, 25, 3, 9.517317),
    Sketcher.Constraint("DistanceX", 27, 3, -1, 1, 6.584483),
    Sketcher.Constraint("DistanceX", 31, 3, -1, 1, 10.816573),
    Sketcher.Constraint("DistanceX", 33, 3, -1, 1, 9.019008),
    Sketcher.Constraint("DistanceY", -1, 1, 33, 3, 1.211407),
    Sketcher.Constraint("DistanceX", 35, 3, -1, 1, 9.078433),
    Sketcher.Constraint("DistanceY", 35, 3, -1, 1, 0.626153),
    Sketcher.Constraint("DistanceX", 37, 3, -1, 1, 11.046298),
    Sketcher.Constraint("DistanceY", 37, 3, -1, 1, 3.198327),
    Sketcher.Constraint("DistanceX", 39, 3, -1, 1, 8.008578),
    Sketcher.Constraint("DistanceY", 39, 3, -1, 1, 4.321193),
    Sketcher.Constraint("DistanceY", 41, 3, -1, 1, 5.842737),
    Sketcher.Constraint("DistanceX", 43, 3, -1, 1, 7.056713),
    Sketcher.Constraint("DistanceY", 43, 3, -1, 1, 9.080352),
    Sketcher.Constraint("DistanceX", 45, 3, -1, 1, 3.939142),
    Sketcher.Constraint("DistanceY", 45, 3, -1, 1, 8.203244),
    Sketcher.Constraint("DistanceX", 47, 3, -1, 1, 2.209882),
    Sketcher.Constraint("DistanceX", 49, 3, -1, 1, 0.371704),
    Sketcher.Constraint("DistanceX", -1, 1, 54, 3, 3.400897),
    Sketcher.Constraint("DistanceX", -1, 1, 56, 3, 6.455284),
    Sketcher.Constraint("DistanceY", 56, 3, -1, 1, 9.517316),
    Sketcher.Constraint("DistanceX", -1, 1, 59, 3, 6.584483),
    Sketcher.Constraint("DistanceX", -1, 1, 63, 3, 10.816572),
    Sketcher.Constraint("DistanceX", -1, 1, 66, 3, 9.019008),
    Sketcher.Constraint("DistanceY", 66, 3, -1, 1, 1.211407),
    Sketcher.Constraint("DistanceX", -1, 1, 5, 2, 10.495478),
    Sketcher.Constraint("DistanceX", -1, 1, 7, 1, 7.568545),
    Sketcher.Constraint("DistanceX", -1, 1, 9, 1, 6.604064),
    Sketcher.Constraint("DistanceY", -1, 1, 11, 2, 9.080352),
    Sketcher.Constraint("DistanceX", -1, 1, 14, 1, 3.722706),
    Sketcher.Constraint("DistanceX", 37, 2, -1, 1, 10.495478),
    Sketcher.Constraint("DistanceX", 39, 1, -1, 1, 7.568545),
    Sketcher.Constraint("DistanceX", 41, 1, -1, 1, 6.604064),
    Sketcher.Constraint("DistanceX", 45, 1, -1, 1, 3.722706),
    Sketcher.Constraint("DistanceY", 56, 2, -1, 1, 9.517316),
])
pad1 = body.newObject("PartDesign::Pad", "Pad")
pad1.Profile = sketch1
pad1.Length = 10

doc.recompute()
